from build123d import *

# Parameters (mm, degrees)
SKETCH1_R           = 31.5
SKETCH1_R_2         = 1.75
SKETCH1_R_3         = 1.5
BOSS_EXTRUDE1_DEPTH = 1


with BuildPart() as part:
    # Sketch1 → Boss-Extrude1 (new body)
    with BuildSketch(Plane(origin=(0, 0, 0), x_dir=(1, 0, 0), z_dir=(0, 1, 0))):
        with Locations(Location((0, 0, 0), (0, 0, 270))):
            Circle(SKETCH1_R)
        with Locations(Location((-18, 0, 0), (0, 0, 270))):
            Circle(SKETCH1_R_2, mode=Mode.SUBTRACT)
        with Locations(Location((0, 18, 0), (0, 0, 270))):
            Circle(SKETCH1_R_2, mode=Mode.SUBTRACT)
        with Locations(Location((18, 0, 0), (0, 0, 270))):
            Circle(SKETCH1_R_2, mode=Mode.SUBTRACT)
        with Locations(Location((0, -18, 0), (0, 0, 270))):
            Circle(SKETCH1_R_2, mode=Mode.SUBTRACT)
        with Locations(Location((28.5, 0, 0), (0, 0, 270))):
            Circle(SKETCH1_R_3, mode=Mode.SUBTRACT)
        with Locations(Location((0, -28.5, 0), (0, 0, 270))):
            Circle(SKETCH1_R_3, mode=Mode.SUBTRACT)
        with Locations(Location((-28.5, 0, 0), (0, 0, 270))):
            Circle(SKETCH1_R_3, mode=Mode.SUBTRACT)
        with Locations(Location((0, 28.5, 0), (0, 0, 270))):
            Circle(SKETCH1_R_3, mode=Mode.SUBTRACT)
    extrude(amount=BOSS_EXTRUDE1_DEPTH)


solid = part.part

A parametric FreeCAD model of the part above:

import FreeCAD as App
import Part
import Sketcher
from FreeCAD import Vector
Q = App.Units.Quantity

doc = App.newDocument("Part")
params = doc.addObject("Spreadsheet::Sheet", "Params")
for row, (alias, value) in enumerate([
    ("sketch1_diameter", "63 mm"),
    ("sketch1_diameter2", "3 mm"),
    ("sketch1_diameter3", "3.5 mm"),
    ("pad1_length", "1 mm"),
], start=1):
    params.set(f"A{row}", alias)
    params.set(f"B{row}", "=" + value)
    params.setAlias(f"B{row}", alias)

body = doc.addObject("PartDesign::Body", "Body")

sketch1 = body.newObject("Sketcher::SketchObject", "Sketch")
sketch1.AttachmentSupport = (doc.getObject("XZ_Plane"), [""])
sketch1.MapMode = "FlatFace"
sketch1.addGeometry(Part.Circle(Vector(0, 0, 0), Vector(0, 0, 1), 31.5), False)
sketch1.addGeometry(Part.Circle(Vector(0, -28.5, 0), Vector(0, 0, 1), 1.5), False)
sketch1.addGeometry(Part.Circle(Vector(0, -18, 0), Vector(0, 0, 1), 1.8), False)
sketch1.addGeometry(Part.Circle(Vector(-28.5, 0, 0), Vector(0, 0, 1), 1.5), False)
sketch1.addGeometry(Part.Circle(Vector(-18, 0, 0), Vector(0, 0, 1), 1.8), False)
sketch1.addGeometry(Part.Circle(Vector(18, 0, 0), Vector(0, 0, 1), 1.8), False)
sketch1.addGeometry(Part.Circle(Vector(28.5, 0, 0), Vector(0, 0, 1), 1.5), False)
sketch1.addGeometry(Part.Circle(Vector(0, 18, 0), Vector(0, 0, 1), 1.8), False)
sketch1.addGeometry(Part.Circle(Vector(0, 28.5, 0), Vector(0, 0, 1), 1.5), False)
sketch1.addConstraint(Sketcher.Constraint("Coincident", 0, 3, -1, 1))
sketch1.addConstraint(Sketcher.Constraint("Equal", 1, 3))
sketch1.addConstraint(Sketcher.Constraint("Equal", 2, 4))
sketch1.addConstraint(Sketcher.Constraint("Equal", 4, 5))
sketch1.addConstraint(Sketcher.Constraint("Equal", 3, 6))
sketch1.addConstraint(Sketcher.Constraint("Equal", 5, 7))
sketch1.addConstraint(Sketcher.Constraint("Equal", 6, 8))
sketch1.addConstraint(Sketcher.Constraint("Symmetric", 4, 3, 5, 3, -1, 1))
sketch1.addConstraint(Sketcher.Constraint("Symmetric", 3, 3, 6, 3, -1, 1))
sketch1.addConstraint(Sketcher.Constraint("Symmetric", 2, 3, 7, 3, -1, 1))
sketch1.addConstraint(Sketcher.Constraint("Symmetric", 1, 3, 8, 3, -1, 1))
sketch1.addConstraint(Sketcher.Constraint("PointOnObject", 1, 3, -2))
sketch1.addConstraint(Sketcher.Constraint("PointOnObject", 2, 3, -2))
sketch1.addConstraint(Sketcher.Constraint("PointOnObject", 3, 3, -1))
sketch1.addConstraint(Sketcher.Constraint("PointOnObject", 4, 3, -1))
sketch1.addConstraint(Sketcher.Constraint("Diameter", 0, Q("63 mm")))
sketch1.addConstraint(Sketcher.Constraint("Diameter", 1, Q("3 mm")))
sketch1.addConstraint(Sketcher.Constraint("Diameter", 2, Q("3.5 mm")))
sketch1.addConstraint(Sketcher.Constraint("DistanceY", 2, 3, -1, 1, Q("18 mm")))
sketch1.addConstraint(Sketcher.Constraint("DistanceX", 4, 3, -1, 1, Q("18 mm")))
sketch1.addConstraint(Sketcher.Constraint("DistanceY", 1, 3, -1, 1, Q("28.5 mm")))
sketch1.addConstraint(Sketcher.Constraint("DistanceX", 3, 3, -1, 1, Q("28.5 mm")))
sketch1.setExpression("Constraints[15]", "Params.sketch1_diameter")
sketch1.setExpression("Constraints[16]", "Params.sketch1_diameter2")
sketch1.setExpression("Constraints[17]", "Params.sketch1_diameter3")
pad1 = body.newObject("PartDesign::Pad", "Pad")
pad1.Profile = sketch1
pad1.setExpression("Length", "Params.pad1_length")
pad1.Reversed = True

doc.recompute()
